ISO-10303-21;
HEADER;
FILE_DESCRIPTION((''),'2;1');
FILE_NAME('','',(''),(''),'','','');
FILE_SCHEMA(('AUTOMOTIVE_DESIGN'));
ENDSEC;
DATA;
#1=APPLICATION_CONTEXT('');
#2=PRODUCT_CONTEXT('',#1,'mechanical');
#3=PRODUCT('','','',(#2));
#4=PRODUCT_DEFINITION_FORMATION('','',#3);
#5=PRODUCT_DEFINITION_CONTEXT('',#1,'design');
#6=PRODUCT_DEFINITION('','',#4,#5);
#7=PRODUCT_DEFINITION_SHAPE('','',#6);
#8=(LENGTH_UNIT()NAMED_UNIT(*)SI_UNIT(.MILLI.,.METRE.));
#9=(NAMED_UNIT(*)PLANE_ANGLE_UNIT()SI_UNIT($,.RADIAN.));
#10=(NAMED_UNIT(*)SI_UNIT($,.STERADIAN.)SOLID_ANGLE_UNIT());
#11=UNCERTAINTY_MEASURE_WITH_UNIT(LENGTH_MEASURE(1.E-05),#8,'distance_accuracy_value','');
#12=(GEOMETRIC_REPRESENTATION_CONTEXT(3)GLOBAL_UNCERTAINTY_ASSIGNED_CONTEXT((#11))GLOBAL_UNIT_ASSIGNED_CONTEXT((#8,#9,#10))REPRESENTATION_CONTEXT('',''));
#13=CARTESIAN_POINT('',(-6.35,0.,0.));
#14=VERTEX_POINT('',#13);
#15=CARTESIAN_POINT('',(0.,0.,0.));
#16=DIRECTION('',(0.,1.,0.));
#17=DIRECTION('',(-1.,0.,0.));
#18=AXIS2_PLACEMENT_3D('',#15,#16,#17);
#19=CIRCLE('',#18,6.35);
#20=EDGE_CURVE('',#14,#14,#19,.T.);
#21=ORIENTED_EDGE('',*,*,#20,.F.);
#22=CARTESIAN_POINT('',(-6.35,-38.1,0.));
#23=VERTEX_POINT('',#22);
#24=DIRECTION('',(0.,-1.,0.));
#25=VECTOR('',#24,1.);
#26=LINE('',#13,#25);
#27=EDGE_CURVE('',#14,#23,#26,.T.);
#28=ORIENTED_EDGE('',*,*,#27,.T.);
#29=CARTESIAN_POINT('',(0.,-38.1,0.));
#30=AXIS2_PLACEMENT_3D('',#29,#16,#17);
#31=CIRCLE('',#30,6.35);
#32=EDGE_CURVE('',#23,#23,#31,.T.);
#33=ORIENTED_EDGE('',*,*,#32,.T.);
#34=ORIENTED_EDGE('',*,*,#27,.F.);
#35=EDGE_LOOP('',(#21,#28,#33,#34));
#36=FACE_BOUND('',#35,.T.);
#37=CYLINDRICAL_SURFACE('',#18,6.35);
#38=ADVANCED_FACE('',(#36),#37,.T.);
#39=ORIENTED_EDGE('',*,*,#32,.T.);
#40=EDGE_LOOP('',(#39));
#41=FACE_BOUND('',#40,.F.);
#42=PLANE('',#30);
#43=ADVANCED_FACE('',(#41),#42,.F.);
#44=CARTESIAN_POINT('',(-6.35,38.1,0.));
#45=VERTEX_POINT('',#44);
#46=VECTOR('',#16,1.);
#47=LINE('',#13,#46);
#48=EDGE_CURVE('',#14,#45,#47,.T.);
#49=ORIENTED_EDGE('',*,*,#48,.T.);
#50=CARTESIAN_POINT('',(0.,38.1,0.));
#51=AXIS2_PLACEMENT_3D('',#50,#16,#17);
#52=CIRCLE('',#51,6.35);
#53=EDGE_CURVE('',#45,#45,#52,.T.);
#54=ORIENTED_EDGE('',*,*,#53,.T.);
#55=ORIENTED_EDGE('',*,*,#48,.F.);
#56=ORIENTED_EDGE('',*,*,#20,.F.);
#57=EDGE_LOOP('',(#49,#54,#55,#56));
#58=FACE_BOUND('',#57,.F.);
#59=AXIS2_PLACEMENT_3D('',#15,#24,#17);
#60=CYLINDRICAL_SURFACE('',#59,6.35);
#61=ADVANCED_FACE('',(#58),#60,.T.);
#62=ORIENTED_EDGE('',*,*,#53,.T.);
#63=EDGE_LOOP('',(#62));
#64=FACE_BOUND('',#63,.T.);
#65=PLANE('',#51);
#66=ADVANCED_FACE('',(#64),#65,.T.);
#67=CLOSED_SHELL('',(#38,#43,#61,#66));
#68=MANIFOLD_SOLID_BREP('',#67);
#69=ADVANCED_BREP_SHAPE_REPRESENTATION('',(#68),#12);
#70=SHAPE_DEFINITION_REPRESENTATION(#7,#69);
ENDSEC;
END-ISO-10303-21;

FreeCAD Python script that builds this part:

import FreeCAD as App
import Part
import Sketcher
from FreeCAD import Vector
Q = App.Units.Quantity

doc = App.newDocument("Part")
body = doc.addObject("PartDesign::Body", "Body")

sketch1 = body.newObject("Sketcher::SketchObject", "Sketch")
sketch1.AttachmentSupport = (doc.getObject("XZ_Plane"), [""])
sketch1.MapMode = "FlatFace"
sketch1.addGeometry(Part.Circle(Vector(0, 0, 0), Vector(0, 0, 1), 6), False)
sketch1.addConstraint([
    Sketcher.Constraint("Coincident", 0, 3, -1, 1),
    Sketcher.Constraint("Diameter", 0, Q("0.5 in")),
])
pad1 = body.newObject("PartDesign::Pad", "Pad")
pad1.Profile = sketch1
pad1.Length = Q("3 in")
pad1.Midplane = True

doc.recompute()
